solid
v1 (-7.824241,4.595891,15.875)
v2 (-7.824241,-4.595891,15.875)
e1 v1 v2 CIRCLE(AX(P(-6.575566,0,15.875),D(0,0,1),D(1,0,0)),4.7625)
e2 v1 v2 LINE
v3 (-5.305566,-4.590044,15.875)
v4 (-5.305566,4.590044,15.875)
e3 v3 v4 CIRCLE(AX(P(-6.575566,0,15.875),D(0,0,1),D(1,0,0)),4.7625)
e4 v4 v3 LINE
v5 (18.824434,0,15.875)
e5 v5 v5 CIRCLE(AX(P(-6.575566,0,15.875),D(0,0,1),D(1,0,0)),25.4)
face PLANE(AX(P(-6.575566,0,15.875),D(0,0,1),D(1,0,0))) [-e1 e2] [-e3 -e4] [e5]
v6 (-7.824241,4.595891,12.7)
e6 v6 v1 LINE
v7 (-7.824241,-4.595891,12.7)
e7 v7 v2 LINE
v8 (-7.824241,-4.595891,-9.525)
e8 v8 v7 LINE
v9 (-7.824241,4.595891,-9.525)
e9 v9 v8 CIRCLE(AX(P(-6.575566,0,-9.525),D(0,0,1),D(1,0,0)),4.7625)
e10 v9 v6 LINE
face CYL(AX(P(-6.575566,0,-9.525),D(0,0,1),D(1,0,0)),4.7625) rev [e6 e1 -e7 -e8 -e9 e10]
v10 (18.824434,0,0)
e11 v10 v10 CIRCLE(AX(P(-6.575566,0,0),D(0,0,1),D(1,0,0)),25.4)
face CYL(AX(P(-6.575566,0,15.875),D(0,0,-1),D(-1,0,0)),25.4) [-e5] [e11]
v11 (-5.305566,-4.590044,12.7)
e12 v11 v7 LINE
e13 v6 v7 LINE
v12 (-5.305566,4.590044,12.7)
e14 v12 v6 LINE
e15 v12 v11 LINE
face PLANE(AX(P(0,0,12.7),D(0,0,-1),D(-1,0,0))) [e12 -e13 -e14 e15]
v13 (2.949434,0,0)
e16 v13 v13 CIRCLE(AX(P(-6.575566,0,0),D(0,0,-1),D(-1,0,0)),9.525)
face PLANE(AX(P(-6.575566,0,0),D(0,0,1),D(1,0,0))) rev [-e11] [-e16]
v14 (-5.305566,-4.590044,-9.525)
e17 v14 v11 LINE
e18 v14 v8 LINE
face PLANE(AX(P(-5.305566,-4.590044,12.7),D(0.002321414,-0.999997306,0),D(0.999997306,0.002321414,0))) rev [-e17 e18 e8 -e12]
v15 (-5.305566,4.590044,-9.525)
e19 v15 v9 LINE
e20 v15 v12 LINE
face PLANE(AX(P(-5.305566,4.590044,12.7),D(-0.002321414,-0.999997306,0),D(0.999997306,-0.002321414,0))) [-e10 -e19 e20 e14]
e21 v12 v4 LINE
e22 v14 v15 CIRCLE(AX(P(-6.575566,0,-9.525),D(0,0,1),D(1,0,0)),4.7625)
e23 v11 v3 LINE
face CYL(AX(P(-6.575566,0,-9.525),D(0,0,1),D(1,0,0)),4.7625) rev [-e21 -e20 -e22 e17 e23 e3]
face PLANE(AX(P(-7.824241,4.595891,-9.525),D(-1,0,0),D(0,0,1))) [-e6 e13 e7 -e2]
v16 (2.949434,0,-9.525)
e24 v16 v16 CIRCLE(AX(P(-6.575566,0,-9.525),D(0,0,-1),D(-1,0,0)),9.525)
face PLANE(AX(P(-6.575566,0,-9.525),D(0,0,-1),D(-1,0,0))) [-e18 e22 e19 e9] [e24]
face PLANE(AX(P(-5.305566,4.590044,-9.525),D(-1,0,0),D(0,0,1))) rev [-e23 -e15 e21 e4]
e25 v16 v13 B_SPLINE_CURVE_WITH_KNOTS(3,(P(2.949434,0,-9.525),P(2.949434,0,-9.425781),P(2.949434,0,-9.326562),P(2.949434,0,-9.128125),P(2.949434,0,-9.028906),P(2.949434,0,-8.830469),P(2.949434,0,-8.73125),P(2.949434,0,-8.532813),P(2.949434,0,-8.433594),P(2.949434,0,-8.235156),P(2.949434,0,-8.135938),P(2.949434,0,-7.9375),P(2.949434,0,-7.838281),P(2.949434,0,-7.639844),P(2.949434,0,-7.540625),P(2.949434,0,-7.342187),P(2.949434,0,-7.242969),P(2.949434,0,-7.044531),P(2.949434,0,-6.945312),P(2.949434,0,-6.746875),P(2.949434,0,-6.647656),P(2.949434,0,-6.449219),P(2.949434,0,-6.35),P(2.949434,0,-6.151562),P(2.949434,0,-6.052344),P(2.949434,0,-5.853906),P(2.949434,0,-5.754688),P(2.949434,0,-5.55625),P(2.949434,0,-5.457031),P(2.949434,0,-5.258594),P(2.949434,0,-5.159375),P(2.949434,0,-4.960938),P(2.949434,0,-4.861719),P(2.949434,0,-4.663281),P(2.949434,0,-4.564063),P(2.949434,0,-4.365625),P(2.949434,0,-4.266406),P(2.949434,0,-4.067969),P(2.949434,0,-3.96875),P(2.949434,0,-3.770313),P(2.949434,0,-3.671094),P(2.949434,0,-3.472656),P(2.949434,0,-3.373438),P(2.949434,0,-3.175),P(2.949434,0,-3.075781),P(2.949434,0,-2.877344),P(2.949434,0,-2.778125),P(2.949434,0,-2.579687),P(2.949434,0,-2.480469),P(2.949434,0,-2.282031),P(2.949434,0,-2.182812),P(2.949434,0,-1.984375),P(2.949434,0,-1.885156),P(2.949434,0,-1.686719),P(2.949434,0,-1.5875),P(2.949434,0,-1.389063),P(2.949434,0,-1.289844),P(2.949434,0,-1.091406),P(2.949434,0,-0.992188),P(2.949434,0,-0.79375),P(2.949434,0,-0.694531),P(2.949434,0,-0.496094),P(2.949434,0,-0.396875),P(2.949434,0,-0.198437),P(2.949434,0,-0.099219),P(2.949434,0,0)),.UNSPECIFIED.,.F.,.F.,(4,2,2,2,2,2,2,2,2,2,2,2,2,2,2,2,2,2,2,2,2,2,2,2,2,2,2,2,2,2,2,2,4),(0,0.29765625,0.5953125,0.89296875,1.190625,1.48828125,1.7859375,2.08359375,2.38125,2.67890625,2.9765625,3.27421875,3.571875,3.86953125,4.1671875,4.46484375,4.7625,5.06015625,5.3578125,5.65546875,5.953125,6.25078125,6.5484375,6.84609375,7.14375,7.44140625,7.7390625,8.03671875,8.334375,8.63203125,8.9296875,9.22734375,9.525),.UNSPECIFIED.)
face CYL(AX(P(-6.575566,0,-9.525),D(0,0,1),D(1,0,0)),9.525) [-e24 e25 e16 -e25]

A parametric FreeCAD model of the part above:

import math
import FreeCAD as App
import Part
import Sketcher
Q = App.Units.Quantity

doc = App.newDocument("Part")
body = doc.addObject("PartDesign::Body", "Body")

# Sketch on XY plane
sketch1 = body.newObject("Sketcher::SketchObject", "Sketch")
sketch1.AttachmentSupport = (doc.getObject("XY_Plane"), [""])
sketch1.MapMode = "FlatFace"
sketch1.addGeometry(Part.Circle(App.Vector(-7, 0, 0), App.Vector(0, 0, 1), 25), False)
sketch1.addConstraint(Sketcher.Constraint("PointOnObject", 0, 3, -1))
sketch1.addConstraint(Sketcher.Constraint("Diameter", 0, Q("2 in")))
sketch1.addConstraint(Sketcher.Constraint("DistanceX", 0, 3, -1, 1, Q("6.575566 mm")))
pad1 = body.newObject("PartDesign::Pad", "Pad")
pad1.Profile = sketch1
pad1.Length = Q("0.625 in")

# Sketch on XY plane
sketch2 = body.newObject("Sketcher::SketchObject", "Sketch001")
sketch2.AttachmentSupport = (doc.getObject("XY_Plane"), [""])
sketch2.MapMode = "FlatFace"
sketch2.addGeometry(Part.Circle(App.Vector(-7, 0, 0), App.Vector(0, 0, 1), 10), False)
sketch2.addConstraint(Sketcher.Constraint("PointOnObject", 0, 3, -1))
sketch2.addConstraint(Sketcher.Constraint("Diameter", 0, Q("0.75 in")))
sketch2.addConstraint(Sketcher.Constraint("DistanceX", 0, 3, -1, 1, Q("6.575566 mm")))
pad2 = body.newObject("PartDesign::Pad", "Pad001")
pad2.Profile = sketch2
pad2.Length = Q("0.375 in")
pad2.Reversed = True

# Sketch on XY plane
sketch3 = body.newObject("Sketcher::SketchObject", "Sketch002")
sketch3.AttachmentSupport = (doc.getObject("XY_Plane"), [""])
sketch3.MapMode = "FlatFace"
sketch3.AttachmentOffset = App.Placement(App.Vector(0, 0, 0.625 * 25.4), App.Rotation())
sketch3.addGeometry(Part.LineSegment(App.Vector(-7.8, -4.6, 0), App.Vector(-7.8, 4.6, 0)), False)
sketch3.addGeometry(Part.ArcOfCircle(Part.Circle(App.Vector(-6.6, 0, 0), App.Vector(0, 0, 1), 4.8), math.radians(105), math.radians(255)), False)
sketch3.addGeometry(Part.LineSegment(App.Vector(-5.3, 4.6, 0), App.Vector(-5.3, -4.6, 0)), False)
sketch3.addGeometry(Part.ArcOfCircle(Part.Circle(App.Vector(-6.6, 0, 0), App.Vector(0, 0, 1), 4.8), math.radians(-75), math.radians(75)), False)
sketch3.addConstraint(Sketcher.Constraint("Coincident", 0, 1, 1, 2))
sketch3.addConstraint(Sketcher.Constraint("Coincident", 1, 1, 0, 2))
sketch3.addConstraint(Sketcher.Constraint("Coincident", 2, 1, 3, 2))
sketch3.addConstraint(Sketcher.Constraint("Coincident", 3, 1, 2, 2))
sketch3.addConstraint(Sketcher.Constraint("Vertical", 0))
sketch3.addConstraint(Sketcher.Constraint("Vertical", 2))
sketch3.addConstraint(Sketcher.Constraint("Coincident", 3, 3, 1, 3))
sketch3.addConstraint(Sketcher.Constraint("Equal", 1, 3))
sketch3.addConstraint(Sketcher.Constraint("PointOnObject", 1, 3, -1))
sketch3.addConstraint(Sketcher.Constraint("Radius", 1, Q("0.1875 in")))
sketch3.addConstraint(Sketcher.Constraint("DistanceX", 1, 3, 2, 1, Q("0.05 in")))
sketch3.addConstraint(Sketcher.Constraint("DistanceY", 0, 1, 0, 2, Q("9.191782 mm")))
sketch3.addConstraint(Sketcher.Constraint("DistanceX", 0, 1, -1, 1, Q("7.824241 mm")))
pocket1 = body.newObject("PartDesign::Pocket", "Pocket")
pocket1.Profile = sketch3
pocket1.Type = "ThroughAll"
pocket1.Midplane = True

# Sketch on XY plane
sketch4 = body.newObject("Sketcher::SketchObject", "Sketch003")
sketch4.AttachmentSupport = (doc.getObject("XY_Plane"), [""])
sketch4.MapMode = "FlatFace"
sketch4.AttachmentOffset = App.Placement(App.Vector(0, 0, -0.375 * 25.4), App.Rotation())
sketch4.addGeometry(Part.LineSegment(App.Vector(-5.3, 4.6, 0), App.Vector(-5.3, -4.6, 0)), False)
sketch4.addGeometry(Part.LineSegment(App.Vector(-5.3, -4.6, 0), App.Vector(-7.8, -4.6, 0)), False)
sketch4.addGeometry(Part.LineSegment(App.Vector(-7.8, -4.6, 0), App.Vector(-7.8, 4.6, 0)), False)
sketch4.addGeometry(Part.LineSegment(App.Vector(-7.8, 4.6, 0), App.Vector(-5.3, 4.6, 0)), False)
sketch4.addConstraint(Sketcher.Constraint("Coincident", 0, 2, 1, 1))
sketch4.addConstraint(Sketcher.Constraint("Coincident", 1, 2, 2, 1))
sketch4.addConstraint(Sketcher.Constraint("Coincident", 2, 2, 3, 1))
sketch4.addConstraint(Sketcher.Constraint("Coincident", 3, 2, 0, 1))
sketch4.addConstraint(Sketcher.Constraint("Vertical", 0))
sketch4.addConstraint(Sketcher.Constraint("Vertical", 2))
sketch4.addConstraint(Sketcher.Constraint("DistanceY", 0, 2, 0, 1, Q("9.180089 mm")))
sketch4.addConstraint(Sketcher.Constraint("DistanceY", 2, 1, 2, 2, Q("9.191782 mm")))
sketch4.addConstraint(Sketcher.Constraint("DistanceX", 1, 2, -1, 1, Q("7.824241 mm")))
sketch4.addConstraint(Sketcher.Constraint("DistanceY", 1, 2, -1, 1, Q("4.595891 mm")))
sketch4.addConstraint(Sketcher.Constraint("Distance", 1, Q("2.518682 mm")))
sketch4.addConstraint(Sketcher.Constraint("DistanceY", 0, 2, -1, 1, Q("4.590044 mm")))
pocket2 = body.newObject("PartDesign::Pocket", "Pocket001")
pocket2.Profile = sketch4
pocket2.Length = Q("0.875 in")
pocket2.Reversed = True

doc.recompute()
